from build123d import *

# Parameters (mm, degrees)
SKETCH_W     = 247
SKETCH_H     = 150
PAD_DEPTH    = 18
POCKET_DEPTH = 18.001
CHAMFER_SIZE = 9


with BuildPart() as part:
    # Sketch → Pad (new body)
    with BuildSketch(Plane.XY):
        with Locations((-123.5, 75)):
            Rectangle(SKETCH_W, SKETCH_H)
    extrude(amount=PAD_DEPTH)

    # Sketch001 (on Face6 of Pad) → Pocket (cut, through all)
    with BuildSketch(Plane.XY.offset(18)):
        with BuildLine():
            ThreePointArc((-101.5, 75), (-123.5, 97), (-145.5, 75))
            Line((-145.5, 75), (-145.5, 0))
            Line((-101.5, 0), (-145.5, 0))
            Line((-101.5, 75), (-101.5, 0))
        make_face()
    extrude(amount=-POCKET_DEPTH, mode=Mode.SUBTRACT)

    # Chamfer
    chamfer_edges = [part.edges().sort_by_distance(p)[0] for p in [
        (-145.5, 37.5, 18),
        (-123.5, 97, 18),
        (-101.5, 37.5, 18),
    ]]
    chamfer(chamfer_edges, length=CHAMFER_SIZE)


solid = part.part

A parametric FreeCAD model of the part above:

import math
import FreeCAD as App
import Part
import Sketcher


def edges_at(feature, points):
    """Names of the edges that pass closest to the given points."""
    edges = feature.Shape.Edges
    near = lambda p: min(range(len(edges)), key=lambda i: edges[i].distToShape(Part.Vertex(*p))[0])
    return sorted({f"Edge{near(p) + 1}" for p in points})

doc = App.newDocument("Part")
body = doc.addObject("PartDesign::Body", "Body")

# Sketch on XY plane
sketch1 = body.newObject("Sketcher::SketchObject", "Sketch")
sketch1.AttachmentSupport = (doc.getObject("XY_Plane"), [""])
sketch1.MapMode = "FlatFace"
sketch1.addGeometry([
    Part.LineSegment(App.Vector(-247, 150, 0), App.Vector(-247, 0, 0)),
    Part.LineSegment(App.Vector(-247, 0, 0), App.Vector(0, 0, 0)),
    Part.LineSegment(App.Vector(0, 0, 0), App.Vector(0, 150, 0)),
    Part.LineSegment(App.Vector(0, 150, 0), App.Vector(-247, 150, 0)),
], False)
sketch1.addConstraint([
    Sketcher.Constraint("Coincident", 0, 2, 1, 1),
    Sketcher.Constraint("Coincident", 1, 2, 2, 1),
    Sketcher.Constraint("Coincident", 2, 2, 3, 1),
    Sketcher.Constraint("Coincident", 3, 2, 0, 1),
    Sketcher.Constraint("Vertical", 0),
    Sketcher.Constraint("Horizontal", 1),
    Sketcher.Constraint("Vertical", 2),
    Sketcher.Constraint("Horizontal", 3),
    Sketcher.Constraint("Coincident", 1, 2, -1, 1),
    Sketcher.Constraint("DistanceX", 1, 1, 1, 2, 247.0),
    Sketcher.Constraint("DistanceY", 0, 2, 0, 1, 150.0),
])
pad1 = body.newObject("PartDesign::Pad", "Pad")
pad1.Profile = sketch1
pad1.Length = 18

# Sketch on XY plane
sketch2 = body.newObject("Sketcher::SketchObject", "Sketch001")
sketch2.AttachmentSupport = (doc.getObject("XY_Plane"), [""])
sketch2.MapMode = "FlatFace"
sketch2.AttachmentOffset = App.Placement(App.Vector(0, 0, 18), App.Rotation())
sketch2.addGeometry([
    Part.ArcOfCircle(Part.Circle(App.Vector(-124, 75, 0), App.Vector(0, 0, 1), 22), math.radians(0), math.radians(180)),
    Part.LineSegment(App.Vector(-146, 75, 0), App.Vector(-146, 0, 0)),
    Part.LineSegment(App.Vector(-146, 0, 0), App.Vector(-102, 0, 0)),
    Part.LineSegment(App.Vector(-102, 0, 0), App.Vector(-102, 75, 0)),
], False)
sketch2.addConstraint([
    Sketcher.Constraint("Tangent", 0, 2, 1, 1),
    Sketcher.Constraint("Coincident", 1, 2, 2, 1),
    Sketcher.Constraint("Coincident", 2, 2, 3, 1),
    Sketcher.Constraint("Tangent", 3, 2, 0, 1),
    Sketcher.Constraint("Vertical", 1),
    Sketcher.Constraint("Horizontal", 2),
    Sketcher.Constraint("Vertical", 3),
    Sketcher.Constraint("PointOnObject", 1, 2, -1),
    Sketcher.Constraint("Radius", 0, 22.0),
    Sketcher.Constraint("DistanceY", 1, 2, 1, 1, 75.0),
    Sketcher.Constraint("DistanceX", 0, 3, -1, 1, 123.5),
])
pocket1 = body.newObject("PartDesign::Pocket", "Pocket")
pocket1.Profile = sketch2
pocket1.Type = "ThroughAll"
doc.recompute()

chamfer = body.newObject("PartDesign::Chamfer", "Chamfer")
chamfer.Base = (pocket1, edges_at(pocket1, [(-145.5, 37.5, 18), (-123.5, 97, 18), (-101.5, 37.5, 18)]))
chamfer.Size = 9

doc.recompute()
